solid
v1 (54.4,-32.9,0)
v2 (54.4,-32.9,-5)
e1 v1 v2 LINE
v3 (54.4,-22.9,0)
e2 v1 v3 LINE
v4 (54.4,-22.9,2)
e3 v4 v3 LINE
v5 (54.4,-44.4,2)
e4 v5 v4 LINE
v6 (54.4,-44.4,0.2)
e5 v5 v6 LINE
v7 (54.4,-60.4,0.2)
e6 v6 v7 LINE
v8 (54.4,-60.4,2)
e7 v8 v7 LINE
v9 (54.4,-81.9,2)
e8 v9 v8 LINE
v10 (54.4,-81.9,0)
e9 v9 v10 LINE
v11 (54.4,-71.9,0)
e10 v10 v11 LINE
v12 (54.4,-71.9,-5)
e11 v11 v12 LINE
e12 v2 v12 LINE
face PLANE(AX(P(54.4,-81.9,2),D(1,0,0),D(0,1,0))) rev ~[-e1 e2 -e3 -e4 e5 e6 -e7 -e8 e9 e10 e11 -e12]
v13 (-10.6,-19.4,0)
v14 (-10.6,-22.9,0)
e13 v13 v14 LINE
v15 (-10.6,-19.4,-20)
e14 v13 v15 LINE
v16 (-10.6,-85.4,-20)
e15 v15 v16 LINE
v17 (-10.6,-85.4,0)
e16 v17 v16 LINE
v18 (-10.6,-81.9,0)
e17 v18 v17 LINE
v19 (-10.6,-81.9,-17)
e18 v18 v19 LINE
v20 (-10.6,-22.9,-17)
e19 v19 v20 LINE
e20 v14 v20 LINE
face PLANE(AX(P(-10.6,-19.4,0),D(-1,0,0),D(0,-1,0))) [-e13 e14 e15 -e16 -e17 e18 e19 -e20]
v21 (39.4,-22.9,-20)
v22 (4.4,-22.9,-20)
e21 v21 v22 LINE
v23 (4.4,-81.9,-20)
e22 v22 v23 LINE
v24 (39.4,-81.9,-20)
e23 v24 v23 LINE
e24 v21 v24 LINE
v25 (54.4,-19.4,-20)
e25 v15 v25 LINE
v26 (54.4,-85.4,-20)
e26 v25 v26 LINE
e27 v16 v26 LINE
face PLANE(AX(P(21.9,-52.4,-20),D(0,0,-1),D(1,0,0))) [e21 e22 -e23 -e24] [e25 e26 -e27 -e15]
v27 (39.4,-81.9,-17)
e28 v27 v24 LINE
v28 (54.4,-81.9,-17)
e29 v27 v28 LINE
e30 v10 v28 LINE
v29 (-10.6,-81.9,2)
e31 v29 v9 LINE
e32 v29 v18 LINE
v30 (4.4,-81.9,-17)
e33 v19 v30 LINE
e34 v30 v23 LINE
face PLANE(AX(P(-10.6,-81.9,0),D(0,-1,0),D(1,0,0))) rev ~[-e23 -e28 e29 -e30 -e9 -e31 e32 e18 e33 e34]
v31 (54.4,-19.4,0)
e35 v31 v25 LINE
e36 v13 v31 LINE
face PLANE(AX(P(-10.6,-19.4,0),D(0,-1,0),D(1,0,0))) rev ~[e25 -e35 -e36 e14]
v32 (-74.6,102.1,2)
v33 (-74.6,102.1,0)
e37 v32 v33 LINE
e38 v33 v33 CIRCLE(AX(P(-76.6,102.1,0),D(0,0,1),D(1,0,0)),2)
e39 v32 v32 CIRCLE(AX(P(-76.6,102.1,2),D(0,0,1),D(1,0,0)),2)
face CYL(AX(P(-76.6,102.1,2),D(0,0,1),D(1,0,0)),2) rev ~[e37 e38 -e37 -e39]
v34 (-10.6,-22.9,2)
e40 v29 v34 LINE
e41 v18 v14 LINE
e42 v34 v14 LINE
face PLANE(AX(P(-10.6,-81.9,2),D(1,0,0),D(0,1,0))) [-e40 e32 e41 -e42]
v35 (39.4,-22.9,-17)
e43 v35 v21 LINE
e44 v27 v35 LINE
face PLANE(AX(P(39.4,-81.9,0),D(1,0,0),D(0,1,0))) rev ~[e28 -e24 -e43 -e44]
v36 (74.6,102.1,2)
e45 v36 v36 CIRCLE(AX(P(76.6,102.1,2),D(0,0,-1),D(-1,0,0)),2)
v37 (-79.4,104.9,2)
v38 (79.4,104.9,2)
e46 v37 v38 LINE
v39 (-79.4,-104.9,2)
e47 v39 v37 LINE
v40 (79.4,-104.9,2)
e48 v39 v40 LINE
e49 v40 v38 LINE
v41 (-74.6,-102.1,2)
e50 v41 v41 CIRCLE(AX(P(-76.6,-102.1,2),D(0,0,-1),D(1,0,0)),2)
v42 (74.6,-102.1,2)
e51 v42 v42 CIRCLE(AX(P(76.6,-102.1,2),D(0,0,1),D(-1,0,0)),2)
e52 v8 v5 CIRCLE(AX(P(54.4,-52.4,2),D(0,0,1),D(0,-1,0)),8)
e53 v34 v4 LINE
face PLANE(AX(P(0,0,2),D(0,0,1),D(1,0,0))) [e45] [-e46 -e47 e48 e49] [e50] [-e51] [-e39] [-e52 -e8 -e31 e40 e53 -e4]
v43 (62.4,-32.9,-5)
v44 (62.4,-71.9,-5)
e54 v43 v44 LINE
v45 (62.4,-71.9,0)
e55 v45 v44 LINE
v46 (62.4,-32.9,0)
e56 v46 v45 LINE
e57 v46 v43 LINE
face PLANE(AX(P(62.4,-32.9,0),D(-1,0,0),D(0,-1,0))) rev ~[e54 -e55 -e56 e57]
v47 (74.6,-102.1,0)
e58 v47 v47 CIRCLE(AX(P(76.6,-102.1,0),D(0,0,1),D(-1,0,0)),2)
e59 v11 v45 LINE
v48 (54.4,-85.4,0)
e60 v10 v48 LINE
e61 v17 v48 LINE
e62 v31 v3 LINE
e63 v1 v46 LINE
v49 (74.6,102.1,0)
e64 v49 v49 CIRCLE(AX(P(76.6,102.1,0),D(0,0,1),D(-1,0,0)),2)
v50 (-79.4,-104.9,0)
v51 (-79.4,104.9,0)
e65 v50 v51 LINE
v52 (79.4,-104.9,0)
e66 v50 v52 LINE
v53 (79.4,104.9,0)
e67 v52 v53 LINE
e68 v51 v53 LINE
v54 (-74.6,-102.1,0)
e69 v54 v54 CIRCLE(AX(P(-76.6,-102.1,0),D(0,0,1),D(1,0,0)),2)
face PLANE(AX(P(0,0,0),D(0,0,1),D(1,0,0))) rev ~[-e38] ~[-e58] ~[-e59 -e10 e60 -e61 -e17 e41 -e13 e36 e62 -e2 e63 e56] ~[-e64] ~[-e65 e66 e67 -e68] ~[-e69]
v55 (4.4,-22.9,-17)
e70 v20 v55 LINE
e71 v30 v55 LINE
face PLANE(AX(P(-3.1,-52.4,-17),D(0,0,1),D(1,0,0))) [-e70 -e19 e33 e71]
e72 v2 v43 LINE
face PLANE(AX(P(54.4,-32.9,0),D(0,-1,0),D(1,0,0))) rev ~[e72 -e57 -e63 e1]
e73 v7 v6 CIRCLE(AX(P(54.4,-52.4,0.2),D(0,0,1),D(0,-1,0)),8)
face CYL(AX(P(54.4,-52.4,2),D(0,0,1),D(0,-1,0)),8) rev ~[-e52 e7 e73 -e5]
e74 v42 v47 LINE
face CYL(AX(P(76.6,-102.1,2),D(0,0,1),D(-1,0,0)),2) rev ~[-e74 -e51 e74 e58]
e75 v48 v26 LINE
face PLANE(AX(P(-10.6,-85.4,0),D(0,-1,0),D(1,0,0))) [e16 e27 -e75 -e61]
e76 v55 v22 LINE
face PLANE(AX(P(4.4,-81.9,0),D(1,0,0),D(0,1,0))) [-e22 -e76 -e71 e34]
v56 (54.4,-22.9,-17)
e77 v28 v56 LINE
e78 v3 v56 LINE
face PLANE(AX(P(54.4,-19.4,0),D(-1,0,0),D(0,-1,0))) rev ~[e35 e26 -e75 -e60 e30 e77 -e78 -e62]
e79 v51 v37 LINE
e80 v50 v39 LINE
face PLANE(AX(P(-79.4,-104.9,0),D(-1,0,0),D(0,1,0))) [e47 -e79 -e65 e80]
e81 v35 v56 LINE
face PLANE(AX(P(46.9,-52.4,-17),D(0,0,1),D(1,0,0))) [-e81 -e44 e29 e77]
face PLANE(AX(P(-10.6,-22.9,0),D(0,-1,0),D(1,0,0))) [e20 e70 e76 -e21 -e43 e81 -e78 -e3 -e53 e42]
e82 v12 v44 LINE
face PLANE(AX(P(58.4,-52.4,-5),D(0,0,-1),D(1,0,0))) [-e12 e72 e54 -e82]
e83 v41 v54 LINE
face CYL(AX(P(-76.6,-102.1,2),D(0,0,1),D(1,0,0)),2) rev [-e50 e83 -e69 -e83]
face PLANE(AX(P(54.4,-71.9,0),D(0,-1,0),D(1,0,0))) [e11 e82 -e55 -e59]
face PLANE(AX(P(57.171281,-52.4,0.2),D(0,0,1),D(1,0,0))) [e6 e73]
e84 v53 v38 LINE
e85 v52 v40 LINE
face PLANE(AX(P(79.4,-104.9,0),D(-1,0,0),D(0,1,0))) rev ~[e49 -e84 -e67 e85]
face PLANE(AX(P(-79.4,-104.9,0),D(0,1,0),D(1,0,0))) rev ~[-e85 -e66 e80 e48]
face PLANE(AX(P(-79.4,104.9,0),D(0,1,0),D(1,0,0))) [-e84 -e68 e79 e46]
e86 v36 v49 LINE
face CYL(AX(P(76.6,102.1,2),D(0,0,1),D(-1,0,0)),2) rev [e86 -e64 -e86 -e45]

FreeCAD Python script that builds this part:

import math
import FreeCAD as App
import Part
import Sketcher

V = App.Vector
Q = App.Units.Quantity

doc = App.newDocument("Part")
params = doc.addObject("Spreadsheet::Sheet", "Params")
for row, (alias, value) in enumerate([
    ("sketch1_width", "158.8 mm"),
    ("sketch1_height", "209.8 mm"),
    ("pad1_length", "2 mm"),
    ("sketch2_diameter", "4 mm"),
    ("sketch3_diameter", "4 mm"),
    ("sketch4_width", "65 mm"),
    ("sketch4_height", "59 mm"),
    ("sketch5_width", "65 mm"),
    ("sketch5_height", "66 mm"),
    ("pad2_length", "20 mm"),
    ("sketch6_radius", "8 mm"),
    ("pocket4_length", "1.8 mm"),
    ("sketch7_width", "15 mm"),
    ("sketch7_height", "59 mm"),
    ("pocket5_length", "17 mm"),
    ("sketch8_width", "35 mm"),
    ("sketch8_height", "59 mm"),
    ("sketch9_width", "8 mm"),
    ("sketch9_height", "39 mm"),
    ("pad3_length", "5 mm"),
], start=1):
    params.set(f"A{row}", alias)
    params.set(f"B{row}", "=" + value)
    params.setAlias(f"B{row}", alias)

body = doc.addObject("PartDesign::Body", "Body")

# Sketch on XY plane
sketch1 = body.newObject("Sketcher::SketchObject", "Sketch")
sketch1.AttachmentSupport = (doc.getObject("XY_Plane"), [""])
sketch1.MapMode = "FlatFace"
sketch1.addGeometry([
    Part.LineSegment(V(-79, 105, 0), V(-79, -105, 0)),
    Part.LineSegment(V(-79, -105, 0), V(79, -105, 0)),
    Part.LineSegment(V(79, -105, 0), V(79, 105, 0)),
    Part.LineSegment(V(79, 105, 0), V(-79, 105, 0)),
], False)
sketch1.addConstraint([
    Sketcher.Constraint("Coincident", 0, 2, 1, 1),
    Sketcher.Constraint("Coincident", 1, 2, 2, 1),
    Sketcher.Constraint("Coincident", 2, 2, 3, 1),
    Sketcher.Constraint("Coincident", 3, 2, 0, 1),
    Sketcher.Constraint("Vertical", 0),
    Sketcher.Constraint("Horizontal", 1),
    Sketcher.Constraint("Vertical", 2),
    Sketcher.Constraint("Horizontal", 3),
    Sketcher.Constraint("Symmetric", 0, 2, 2, 2, -1, 1),
    Sketcher.Constraint("DistanceX", 1, 1, 1, 2, Q("158.8 mm")),
    Sketcher.Constraint("DistanceY", 0, 2, 0, 1, Q("209.8 mm")),
])
sketch1.setExpression("Constraints[9]", "Params.sketch1_width")
sketch1.setExpression("Constraints[10]", "Params.sketch1_height")
pad1 = body.newObject("PartDesign::Pad", "Pad")
pad1.Profile = sketch1
pad1.setExpression("Length", "Params.pad1_length")

# Sketch on XY plane
sketch2 = body.newObject("Sketcher::SketchObject", "Sketch001")
sketch2.AttachmentSupport = (doc.getObject("XY_Plane"), [""])
sketch2.MapMode = "FlatFace"
sketch2.AttachmentOffset = App.Placement(V(0, 0, 2), App.Rotation())
sketch2.addGeometry(Part.Circle(V(-76.6, 102.1, 0), V(0, 0, 1), 2), False)
sketch2.addConstraint([
    Sketcher.Constraint("Diameter", 0, Q("4 mm")),
    Sketcher.Constraint("DistanceX", 0, 3, -1, 1, Q("76.6 mm")),
    Sketcher.Constraint("DistanceY", -1, 1, 0, 3, Q("102.1 mm")),
])
sketch2.setExpression("Constraints[0]", "Params.sketch2_diameter")
pocket1 = body.newObject("PartDesign::Pocket", "Pocket")
pocket1.Profile = sketch2
pocket1.Type = "ThroughAll"

# Sketch on XY plane
sketch3 = body.newObject("Sketcher::SketchObject", "Sketch002")
sketch3.AttachmentSupport = (doc.getObject("XY_Plane"), [""])
sketch3.MapMode = "FlatFace"
sketch3.AttachmentOffset = App.Placement(V(0, 0, 2), App.Rotation())
sketch3.addGeometry(Part.Circle(V(76.6, 102.1, 0), V(0, 0, 1), 2), False)
sketch3.addConstraint([
    Sketcher.Constraint("Diameter", 0, Q("4 mm")),
    Sketcher.Constraint("DistanceX", -1, 1, 0, 3, Q("76.6 mm")),
    Sketcher.Constraint("DistanceY", -1, 1, 0, 3, Q("102.1 mm")),
])
sketch3.setExpression("Constraints[0]", "Params.sketch3_diameter")
pocket2 = body.newObject("PartDesign::Pocket", "Pocket001")
pocket2.Profile = sketch3
pocket2.Type = "ThroughAll"
doc.recompute()

mirrored = body.newObject("PartDesign::Mirrored", "Mirrored")
mirrored.Originals = [pocket1, pocket2]
mirrored.MirrorPlane = (doc.getObject("XZ_Plane"), [""])
body.Tip = mirrored

# Sketch on XY plane
sketch4 = body.newObject("Sketcher::SketchObject", "Sketch003")
sketch4.AttachmentSupport = (doc.getObject("XY_Plane"), [""])
sketch4.MapMode = "FlatFace"
sketch4.AttachmentOffset = App.Placement(V(0, 0, 2), App.Rotation())
sketch4.addGeometry([
    Part.LineSegment(V(-11, -23, 0), V(-11, -82, 0)),
    Part.LineSegment(V(-11, -82, 0), V(54, -82, 0)),
    Part.LineSegment(V(54, -82, 0), V(54, -23, 0)),
    Part.LineSegment(V(54, -23, 0), V(-11, -23, 0)),
], False)
sketch4.addConstraint([
    Sketcher.Constraint("Coincident", 0, 2, 1, 1),
    Sketcher.Constraint("Coincident", 1, 2, 2, 1),
    Sketcher.Constraint("Coincident", 2, 2, 3, 1),
    Sketcher.Constraint("Coincident", 3, 2, 0, 1),
    Sketcher.Constraint("Vertical", 0),
    Sketcher.Constraint("Horizontal", 1),
    Sketcher.Constraint("Vertical", 2),
    Sketcher.Constraint("Horizontal", 3),
    Sketcher.Constraint("DistanceX", 1, 1, 1, 2, Q("65 mm")),
    Sketcher.Constraint("DistanceY", 0, 2, 0, 1, Q("59 mm")),
    Sketcher.Constraint("DistanceX", 0, 2, -1, 1, Q("10.6 mm")),
    Sketcher.Constraint("DistanceY", 0, 2, -1, 1, Q("81.9 mm")),
])
sketch4.setExpression("Constraints[8]", "Params.sketch4_width")
sketch4.setExpression("Constraints[9]", "Params.sketch4_height")
pocket3 = body.newObject("PartDesign::Pocket", "Pocket002")
pocket3.Profile = sketch4
pocket3.Type = "ThroughAll"

# Sketch on XY plane
sketch5 = body.newObject("Sketcher::SketchObject", "Sketch004")
sketch5.AttachmentSupport = (doc.getObject("XY_Plane"), [""])
sketch5.MapMode = "FlatFace"
sketch5.addGeometry([
    Part.LineSegment(V(-11, -85, 0), V(-11, -19, 0)),
    Part.LineSegment(V(-11, -19, 0), V(54, -19, 0)),
    Part.LineSegment(V(54, -19, 0), V(54, -85, 0)),
    Part.LineSegment(V(54, -85, 0), V(-11, -85, 0)),
], False)
sketch5.addConstraint([
    Sketcher.Constraint("Coincident", 0, 2, 1, 1),
    Sketcher.Constraint("Coincident", 1, 2, 2, 1),
    Sketcher.Constraint("Coincident", 2, 2, 3, 1),
    Sketcher.Constraint("Coincident", 3, 2, 0, 1),
    Sketcher.Constraint("Vertical", 0),
    Sketcher.Constraint("Horizontal", 1),
    Sketcher.Constraint("Vertical", 2),
    Sketcher.Constraint("Horizontal", 3),
    Sketcher.Constraint("DistanceX", 1, 1, 1, 2, Q("65 mm")),
    Sketcher.Constraint("DistanceY", 0, 1, 0, 2, Q("66 mm")),
    Sketcher.Constraint("DistanceX", 0, 2, -1, 1, Q("10.6 mm")),
    Sketcher.Constraint("DistanceY", 0, 2, -1, 1, Q("19.4 mm")),
])
sketch5.setExpression("Constraints[8]", "Params.sketch5_width")
sketch5.setExpression("Constraints[9]", "Params.sketch5_height")
pad2 = body.newObject("PartDesign::Pad", "Pad001")
pad2.Profile = sketch5
pad2.setExpression("Length", "Params.pad2_length")
pad2.Reversed = True

# Sketch on XY plane
sketch6 = body.newObject("Sketcher::SketchObject", "Sketch005")
sketch6.AttachmentSupport = (doc.getObject("XY_Plane"), [""])
sketch6.MapMode = "FlatFace"
sketch6.AttachmentOffset = App.Placement(V(0, 0, 2), App.Rotation())
sketch6.addGeometry([
    Part.ArcOfCircle(Part.Circle(V(54, -52, 0), V(0, 0, 1), 8), math.radians(-90), math.radians(90)),
    Part.LineSegment(V(54, -44, 0), V(54, -60, 0)),
], False)
sketch6.addConstraint([
    Sketcher.Constraint("Coincident", 0, 1, 1, 2),
    Sketcher.Constraint("Coincident", 1, 1, 0, 2),
    Sketcher.Constraint("Vertical", 1),
    Sketcher.Constraint("Radius", 0, Q("8 mm")),
    Sketcher.Constraint("DistanceX", -1, 1, 0, 3, Q("54.4 mm")),
    Sketcher.Constraint("DistanceY", 0, 3, -1, 1, Q("52.4 mm")),
    Sketcher.Constraint("DistanceX", -1, 1, 0, 1, Q("54.4 mm")),
])
sketch6.setExpression("Constraints[3]", "Params.sketch6_radius")
pocket4 = body.newObject("PartDesign::Pocket", "Pocket003")
pocket4.Profile = sketch6
pocket4.setExpression("Length", "Params.pocket4_length")

# Sketch on XY plane
sketch7 = body.newObject("Sketcher::SketchObject", "Sketch006")
sketch7.AttachmentSupport = (doc.getObject("XY_Plane"), [""])
sketch7.MapMode = "FlatFace"
sketch7.addGeometry([
    Part.LineSegment(V(-11, -23, 0), V(-11, -82, 0)),  # 0
    Part.LineSegment(V(-11, -82, 0), V(4, -82, 0)),  # 1
    Part.LineSegment(V(4, -82, 0), V(4, -23, 0)),  # 2
    Part.LineSegment(V(4, -23, 0), V(-11, -23, 0)),  # 3
    Part.LineSegment(V(39, -23, 0), V(39, -82, 0)),  # 4
    Part.LineSegment(V(39, -82, 0), V(54, -82, 0)),  # 5
    Part.LineSegment(V(54, -82, 0), V(54, -23, 0)),  # 6
    Part.LineSegment(V(54, -23, 0), V(39, -23, 0)),  # 7
], False)
sketch7.addConstraint([
    Sketcher.Constraint("Coincident", 0, 2, 1, 1),
    Sketcher.Constraint("Coincident", 1, 2, 2, 1),
    Sketcher.Constraint("Coincident", 2, 2, 3, 1),
    Sketcher.Constraint("Coincident", 3, 2, 0, 1),
    Sketcher.Constraint("Coincident", 4, 2, 5, 1),
    Sketcher.Constraint("Coincident", 5, 2, 6, 1),
    Sketcher.Constraint("Coincident", 6, 2, 7, 1),
    Sketcher.Constraint("Coincident", 7, 2, 4, 1),
    Sketcher.Constraint("Vertical", 0),
    Sketcher.Constraint("Horizontal", 1),
    Sketcher.Constraint("Vertical", 2),
    Sketcher.Constraint("Horizontal", 3),
    Sketcher.Constraint("Vertical", 4),
    Sketcher.Constraint("Horizontal", 5),
    Sketcher.Constraint("Vertical", 6),
    Sketcher.Constraint("Horizontal", 7),
    Sketcher.Constraint("Horizontal", 1, 2, 4, 2),
    Sketcher.Constraint("Horizontal", 3, 2, 6, 2),
    Sketcher.Constraint("Equal", 3, 5),
    Sketcher.Constraint("DistanceX", 1, 1, 1, 2, Q("15 mm")),
    Sketcher.Constraint("DistanceY", 0, 2, 0, 1, Q("59 mm")),
    Sketcher.Constraint("DistanceX", 1, 2, 4, 2, Q("35 mm")),
    Sketcher.Constraint("DistanceX", 0, 2, -1, 1, Q("10.6 mm")),
    Sketcher.Constraint("DistanceY", 0, 2, -1, 1, Q("81.9 mm")),
])
sketch7.setExpression("Constraints[19]", "Params.sketch7_width")
sketch7.setExpression("Constraints[20]", "Params.sketch7_height")
pocket5 = body.newObject("PartDesign::Pocket", "Pocket004")
pocket5.Profile = sketch7
pocket5.setExpression("Length", "Params.pocket5_length")

# Sketch on XY plane
sketch8 = body.newObject("Sketcher::SketchObject", "Sketch007")
sketch8.AttachmentSupport = (doc.getObject("XY_Plane"), [""])
sketch8.MapMode = "FlatFace"
sketch8.addGeometry([
    Part.LineSegment(V(4, -23, 0), V(4, -82, 0)),
    Part.LineSegment(V(4, -82, 0), V(39, -82, 0)),
    Part.LineSegment(V(39, -82, 0), V(39, -23, 0)),
    Part.LineSegment(V(39, -23, 0), V(4, -23, 0)),
], False)
sketch8.addConstraint([
    Sketcher.Constraint("Coincident", 0, 2, 1, 1),
    Sketcher.Constraint("Coincident", 1, 2, 2, 1),
    Sketcher.Constraint("Coincident", 2, 2, 3, 1),
    Sketcher.Constraint("Coincident", 3, 2, 0, 1),
    Sketcher.Constraint("Vertical", 0),
    Sketcher.Constraint("Horizontal", 1),
    Sketcher.Constraint("Vertical", 2),
    Sketcher.Constraint("Horizontal", 3),
    Sketcher.Constraint("DistanceX", 1, 1, 1, 2, Q("35 mm")),
    Sketcher.Constraint("DistanceY", 0, 2, 0, 1, Q("59 mm")),
    Sketcher.Constraint("DistanceX", -1, 1, 0, 2, Q("4.4 mm")),
    Sketcher.Constraint("DistanceY", 0, 2, -1, 1, Q("81.9 mm")),
])
sketch8.setExpression("Constraints[8]", "Params.sketch8_width")
sketch8.setExpression("Constraints[9]", "Params.sketch8_height")
pocket6 = body.newObject("PartDesign::Pocket", "Pocket005")
pocket6.Profile = sketch8
pocket6.Type = "ThroughAll"

# Sketch on XY plane
sketch9 = body.newObject("Sketcher::SketchObject", "Sketch008")
sketch9.AttachmentSupport = (doc.getObject("XY_Plane"), [""])
sketch9.MapMode = "FlatFace"
sketch9.addGeometry([
    Part.LineSegment(V(54, -72, 0), V(54, -33, 0)),
    Part.LineSegment(V(54, -33, 0), V(62, -33, 0)),
    Part.LineSegment(V(62, -33, 0), V(62, -72, 0)),
    Part.LineSegment(V(62, -72, 0), V(54, -72, 0)),
], False)
sketch9.addConstraint([
    Sketcher.Constraint("Coincident", 0, 2, 1, 1),
    Sketcher.Constraint("Coincident", 1, 2, 2, 1),
    Sketcher.Constraint("Coincident", 2, 2, 3, 1),
    Sketcher.Constraint("Coincident", 3, 2, 0, 1),
    Sketcher.Constraint("Vertical", 0),
    Sketcher.Constraint("Horizontal", 1),
    Sketcher.Constraint("Vertical", 2),
    Sketcher.Constraint("Horizontal", 3),
    Sketcher.Constraint("DistanceX", 1, 1, 1, 2, Q("8 mm")),
    Sketcher.Constraint("DistanceY", 0, 1, 0, 2, Q("39 mm")),
    Sketcher.Constraint("DistanceX", -1, 1, 0, 2, Q("54.4 mm")),
    Sketcher.Constraint("DistanceY", 0, 2, -1, 1, Q("32.9 mm")),
])
sketch9.setExpression("Constraints[8]", "Params.sketch9_width")
sketch9.setExpression("Constraints[9]", "Params.sketch9_height")
pad3 = body.newObject("PartDesign::Pad", "Pad002")
pad3.Profile = sketch9
pad3.setExpression("Length", "Params.pad3_length")
pad3.Reversed = True

doc.recompute()
